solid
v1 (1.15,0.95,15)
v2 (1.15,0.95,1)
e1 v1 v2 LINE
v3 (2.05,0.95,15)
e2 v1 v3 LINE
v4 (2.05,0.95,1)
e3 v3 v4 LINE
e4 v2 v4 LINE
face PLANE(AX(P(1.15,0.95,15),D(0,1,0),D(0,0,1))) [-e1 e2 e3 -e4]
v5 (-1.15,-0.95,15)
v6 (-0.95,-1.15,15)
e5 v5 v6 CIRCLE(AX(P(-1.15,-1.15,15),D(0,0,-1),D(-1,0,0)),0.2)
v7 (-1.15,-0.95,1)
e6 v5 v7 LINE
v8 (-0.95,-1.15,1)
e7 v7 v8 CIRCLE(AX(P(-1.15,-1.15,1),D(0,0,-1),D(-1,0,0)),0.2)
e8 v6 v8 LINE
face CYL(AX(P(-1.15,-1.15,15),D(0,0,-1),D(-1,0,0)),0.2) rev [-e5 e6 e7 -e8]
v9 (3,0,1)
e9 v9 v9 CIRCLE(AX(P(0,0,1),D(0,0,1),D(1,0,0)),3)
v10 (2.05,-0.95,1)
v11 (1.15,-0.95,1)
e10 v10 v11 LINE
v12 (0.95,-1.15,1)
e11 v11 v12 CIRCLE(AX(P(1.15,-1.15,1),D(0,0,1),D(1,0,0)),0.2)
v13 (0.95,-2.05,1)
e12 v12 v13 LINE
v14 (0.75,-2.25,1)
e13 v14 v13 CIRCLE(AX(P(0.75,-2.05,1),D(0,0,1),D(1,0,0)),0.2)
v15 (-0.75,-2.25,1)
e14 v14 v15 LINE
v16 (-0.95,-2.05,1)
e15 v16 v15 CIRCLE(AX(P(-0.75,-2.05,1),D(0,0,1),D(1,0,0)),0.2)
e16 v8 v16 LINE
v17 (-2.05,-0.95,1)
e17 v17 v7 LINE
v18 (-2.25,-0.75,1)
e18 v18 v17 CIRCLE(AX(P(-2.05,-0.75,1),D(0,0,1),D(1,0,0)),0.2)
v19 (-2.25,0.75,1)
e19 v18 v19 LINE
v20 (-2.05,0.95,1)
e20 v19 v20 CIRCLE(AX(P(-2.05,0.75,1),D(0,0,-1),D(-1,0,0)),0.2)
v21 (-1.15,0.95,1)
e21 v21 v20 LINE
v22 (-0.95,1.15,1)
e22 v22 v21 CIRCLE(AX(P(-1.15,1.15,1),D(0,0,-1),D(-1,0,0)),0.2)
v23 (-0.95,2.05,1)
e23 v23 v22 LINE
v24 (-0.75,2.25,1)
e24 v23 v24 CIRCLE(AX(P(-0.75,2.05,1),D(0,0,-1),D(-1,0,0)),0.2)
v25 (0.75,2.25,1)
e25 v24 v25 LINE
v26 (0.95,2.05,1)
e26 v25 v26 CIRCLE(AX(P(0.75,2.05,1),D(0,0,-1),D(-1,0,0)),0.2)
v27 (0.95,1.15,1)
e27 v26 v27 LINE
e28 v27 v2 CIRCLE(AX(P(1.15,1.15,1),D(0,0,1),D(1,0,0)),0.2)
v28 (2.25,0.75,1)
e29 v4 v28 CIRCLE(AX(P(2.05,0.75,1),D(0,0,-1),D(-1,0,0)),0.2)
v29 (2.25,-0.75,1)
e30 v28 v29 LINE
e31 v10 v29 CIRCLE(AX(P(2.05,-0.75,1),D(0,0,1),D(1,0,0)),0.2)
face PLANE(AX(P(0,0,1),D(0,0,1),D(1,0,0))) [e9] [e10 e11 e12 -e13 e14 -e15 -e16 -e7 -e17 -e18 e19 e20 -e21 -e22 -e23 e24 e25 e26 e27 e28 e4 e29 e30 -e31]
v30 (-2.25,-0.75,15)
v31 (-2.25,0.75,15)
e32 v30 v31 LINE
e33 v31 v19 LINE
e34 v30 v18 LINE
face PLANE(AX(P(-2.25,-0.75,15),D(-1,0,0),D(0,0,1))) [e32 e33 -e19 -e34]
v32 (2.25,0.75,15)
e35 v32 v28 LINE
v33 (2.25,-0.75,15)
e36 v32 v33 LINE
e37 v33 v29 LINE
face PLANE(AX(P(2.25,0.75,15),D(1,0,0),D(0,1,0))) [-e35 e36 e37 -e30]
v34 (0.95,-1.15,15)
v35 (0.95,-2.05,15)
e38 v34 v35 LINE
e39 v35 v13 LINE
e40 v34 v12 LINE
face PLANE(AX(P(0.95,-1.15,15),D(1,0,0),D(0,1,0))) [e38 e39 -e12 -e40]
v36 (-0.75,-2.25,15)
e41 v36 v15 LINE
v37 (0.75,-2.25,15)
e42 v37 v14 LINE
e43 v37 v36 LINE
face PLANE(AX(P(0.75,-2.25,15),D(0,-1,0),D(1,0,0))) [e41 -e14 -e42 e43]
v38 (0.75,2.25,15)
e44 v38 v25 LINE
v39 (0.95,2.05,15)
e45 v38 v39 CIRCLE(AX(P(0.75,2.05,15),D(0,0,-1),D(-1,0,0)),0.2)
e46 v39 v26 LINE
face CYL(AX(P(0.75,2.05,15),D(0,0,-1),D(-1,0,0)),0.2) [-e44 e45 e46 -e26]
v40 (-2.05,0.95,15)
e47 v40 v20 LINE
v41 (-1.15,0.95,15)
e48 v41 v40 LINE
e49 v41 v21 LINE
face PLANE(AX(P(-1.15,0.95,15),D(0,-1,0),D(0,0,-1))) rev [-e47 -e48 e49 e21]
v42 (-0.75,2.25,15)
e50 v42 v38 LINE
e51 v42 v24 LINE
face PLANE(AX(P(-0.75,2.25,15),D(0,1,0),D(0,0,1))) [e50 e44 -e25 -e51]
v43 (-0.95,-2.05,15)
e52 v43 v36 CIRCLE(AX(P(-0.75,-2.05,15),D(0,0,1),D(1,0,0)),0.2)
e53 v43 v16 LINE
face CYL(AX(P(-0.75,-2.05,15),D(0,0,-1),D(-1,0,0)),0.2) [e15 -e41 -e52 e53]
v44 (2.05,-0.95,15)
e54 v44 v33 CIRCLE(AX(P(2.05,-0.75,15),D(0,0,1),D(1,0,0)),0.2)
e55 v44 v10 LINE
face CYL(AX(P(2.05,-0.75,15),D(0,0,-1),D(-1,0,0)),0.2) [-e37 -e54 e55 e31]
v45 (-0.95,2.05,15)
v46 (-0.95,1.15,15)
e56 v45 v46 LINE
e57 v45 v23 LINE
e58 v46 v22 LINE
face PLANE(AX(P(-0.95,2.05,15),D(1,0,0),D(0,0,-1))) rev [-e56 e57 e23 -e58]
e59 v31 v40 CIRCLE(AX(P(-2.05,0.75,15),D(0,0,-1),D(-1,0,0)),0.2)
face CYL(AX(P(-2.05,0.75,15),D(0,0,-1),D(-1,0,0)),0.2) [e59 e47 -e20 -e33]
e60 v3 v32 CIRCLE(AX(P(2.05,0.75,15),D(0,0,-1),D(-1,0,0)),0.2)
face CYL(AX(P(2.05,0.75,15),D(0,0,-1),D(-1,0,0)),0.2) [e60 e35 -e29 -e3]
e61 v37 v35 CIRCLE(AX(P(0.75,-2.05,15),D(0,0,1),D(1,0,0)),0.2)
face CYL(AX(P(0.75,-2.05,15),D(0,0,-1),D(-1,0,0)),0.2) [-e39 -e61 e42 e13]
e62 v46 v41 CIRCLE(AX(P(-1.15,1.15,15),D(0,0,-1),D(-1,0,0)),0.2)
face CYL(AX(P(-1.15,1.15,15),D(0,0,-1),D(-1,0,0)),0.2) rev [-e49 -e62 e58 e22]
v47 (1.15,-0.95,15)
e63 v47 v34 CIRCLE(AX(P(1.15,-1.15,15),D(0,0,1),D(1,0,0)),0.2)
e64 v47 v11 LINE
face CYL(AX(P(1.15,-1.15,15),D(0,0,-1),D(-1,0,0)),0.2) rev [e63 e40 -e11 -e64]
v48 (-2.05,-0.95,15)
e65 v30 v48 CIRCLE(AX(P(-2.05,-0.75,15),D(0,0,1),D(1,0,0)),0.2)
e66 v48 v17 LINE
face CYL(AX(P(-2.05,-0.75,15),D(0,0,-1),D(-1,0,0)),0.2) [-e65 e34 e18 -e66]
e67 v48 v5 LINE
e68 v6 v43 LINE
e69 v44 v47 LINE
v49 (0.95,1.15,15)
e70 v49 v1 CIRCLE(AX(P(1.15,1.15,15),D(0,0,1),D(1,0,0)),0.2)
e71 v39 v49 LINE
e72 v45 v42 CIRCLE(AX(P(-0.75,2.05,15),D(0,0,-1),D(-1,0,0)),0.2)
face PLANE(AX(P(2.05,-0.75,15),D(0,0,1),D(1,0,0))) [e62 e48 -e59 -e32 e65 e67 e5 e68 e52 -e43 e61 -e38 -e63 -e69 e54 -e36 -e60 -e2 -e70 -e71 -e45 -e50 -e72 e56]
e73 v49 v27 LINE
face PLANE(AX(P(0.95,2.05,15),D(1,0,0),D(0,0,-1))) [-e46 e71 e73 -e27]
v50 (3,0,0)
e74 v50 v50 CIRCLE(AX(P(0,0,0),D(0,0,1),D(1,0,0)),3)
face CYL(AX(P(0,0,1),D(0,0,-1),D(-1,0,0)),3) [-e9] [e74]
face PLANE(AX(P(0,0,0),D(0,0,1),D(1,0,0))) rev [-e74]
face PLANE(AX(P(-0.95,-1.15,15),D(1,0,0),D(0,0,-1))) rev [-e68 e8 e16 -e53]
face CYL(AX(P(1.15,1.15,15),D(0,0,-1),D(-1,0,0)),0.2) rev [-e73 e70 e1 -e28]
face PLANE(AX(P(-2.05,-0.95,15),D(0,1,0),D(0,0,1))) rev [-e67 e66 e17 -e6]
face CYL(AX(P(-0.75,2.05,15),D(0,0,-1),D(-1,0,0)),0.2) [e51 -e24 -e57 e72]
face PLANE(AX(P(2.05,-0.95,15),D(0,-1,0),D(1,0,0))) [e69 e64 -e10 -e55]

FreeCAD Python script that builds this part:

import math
import FreeCAD as App
import Part
import Sketcher

V = App.Vector

doc = App.newDocument("Part")
body = doc.addObject("PartDesign::Body", "Body")

# Sketch on XY plane
sketch1 = body.newObject("Sketcher::SketchObject", "Sketch")
sketch1.AttachmentSupport = (doc.getObject("XY_Plane"), [""])
sketch1.MapMode = "FlatFace"
sketch1.addGeometry(Part.Circle(V(0, 0, 0), V(0, 0, 1), 3), False)
sketch1.addConstraint(Sketcher.Constraint("Coincident", 0, 3, -1, 1))
sketch1.addConstraint(Sketcher.Constraint("Diameter", 0, 6.0))
pad1 = body.newObject("PartDesign::Pad", "Pad")
pad1.Profile = sketch1
pad1.Length = 1

# Sketch on XY plane
sketch2 = body.newObject("Sketcher::SketchObject", "Sketch001")
sketch2.AttachmentSupport = (doc.getObject("XY_Plane"), [""])
sketch2.MapMode = "FlatFace"
sketch2.AttachmentOffset = App.Placement(V(0, 0, 1), App.Rotation())
sketch2.addGeometry(Part.LineSegment(V(-0.95, 2.05, 0), V(-0.95, 1.15, 0)), False)
sketch2.addGeometry(Part.ArcOfCircle(Part.Circle(V(-1.15, 1.15, 0), V(0, 0, 1), 0.2), math.radians(-90), math.radians(0)), False)
sketch2.addGeometry(Part.LineSegment(V(-1.15, 0.95, 0), V(-2.05, 0.95, 0)), False)
sketch2.addGeometry(Part.ArcOfCircle(Part.Circle(V(-2.05, 0.75, 0), V(0, 0, 1), 0.2), math.radians(90), math.radians(180)), False)
sketch2.addGeometry(Part.LineSegment(V(-2.25, 0.75, 0), V(-2.25, -0.75, 0)), False)
sketch2.addGeometry(Part.ArcOfCircle(Part.Circle(V(-2.05, -0.75, 0), V(0, 0, 1), 0.2), math.radians(-180), math.radians(-90)), False)
sketch2.addGeometry(Part.LineSegment(V(-2.05, -0.95, 0), V(-1.15, -0.95, 0)), False)
sketch2.addGeometry(Part.ArcOfCircle(Part.Circle(V(-1.15, -1.15, 0), V(0, 0, 1), 0.2), math.radians(0), math.radians(90)), False)
sketch2.addGeometry(Part.LineSegment(V(-0.95, -1.15, 0), V(-0.95, -2.05, 0)), False)
sketch2.addGeometry(Part.ArcOfCircle(Part.Circle(V(-0.75, -2.05, 0), V(0, 0, 1), 0.2), math.radians(-180), math.radians(-90)), False)
sketch2.addGeometry(Part.LineSegment(V(-0.75, -2.25, 0), V(0.75, -2.25, 0)), False)
sketch2.addGeometry(Part.ArcOfCircle(Part.Circle(V(0.75, -2.05, 0), V(0, 0, 1), 0.2), math.radians(-90), math.radians(0)), False)
sketch2.addGeometry(Part.LineSegment(V(0.95, -2.05, 0), V(0.95, -1.15, 0)), False)
sketch2.addGeometry(Part.ArcOfCircle(Part.Circle(V(1.15, -1.15, 0), V(0, 0, 1), 0.2), math.radians(90), math.radians(180)), False)
sketch2.addGeometry(Part.LineSegment(V(1.15, -0.95, 0), V(2.05, -0.95, 0)), False)
sketch2.addGeometry(Part.ArcOfCircle(Part.Circle(V(2.05, -0.75, 0), V(0, 0, 1), 0.2), math.radians(-90), math.radians(0)), False)
sketch2.addGeometry(Part.LineSegment(V(2.25, -0.75, 0), V(2.25, 0.75, 0)), False)
sketch2.addGeometry(Part.ArcOfCircle(Part.Circle(V(2.05, 0.75, 0), V(0, 0, 1), 0.2), math.radians(0), math.radians(90)), False)
sketch2.addGeometry(Part.LineSegment(V(2.05, 0.95, 0), V(1.15, 0.95, 0)), False)
sketch2.addGeometry(Part.ArcOfCircle(Part.Circle(V(1.15, 1.15, 0), V(0, 0, 1), 0.2), math.radians(-180), math.radians(-90)), False)
sketch2.addGeometry(Part.LineSegment(V(0.95, 1.15, 0), V(0.95, 2.05, 0)), False)
sketch2.addGeometry(Part.ArcOfCircle(Part.Circle(V(0.75, 2.05, 0), V(0, 0, 1), 0.2), math.radians(0), math.radians(90)), False)
sketch2.addGeometry(Part.LineSegment(V(0.75, 2.25, 0), V(-0.75, 2.25, 0)), False)
sketch2.addGeometry(Part.ArcOfCircle(Part.Circle(V(-0.75, 2.05, 0), V(0, 0, 1), 0.2), math.radians(90), math.radians(180)), False)
sketch2.addConstraint(Sketcher.Constraint("Tangent", 0, 2, 1, 2))
sketch2.addConstraint(Sketcher.Constraint("Tangent", 1, 1, 2, 1))
sketch2.addConstraint(Sketcher.Constraint("Tangent", 2, 2, 3, 1))
sketch2.addConstraint(Sketcher.Constraint("Tangent", 3, 2, 4, 1))
sketch2.addConstraint(Sketcher.Constraint("Tangent", 4, 2, 5, 1))
sketch2.addConstraint(Sketcher.Constraint("Tangent", 5, 2, 6, 1))
sketch2.addConstraint(Sketcher.Constraint("Tangent", 6, 2, 7, 2))
sketch2.addConstraint(Sketcher.Constraint("Tangent", 7, 1, 8, 1))
sketch2.addConstraint(Sketcher.Constraint("Tangent", 8, 2, 9, 1))
sketch2.addConstraint(Sketcher.Constraint("Tangent", 9, 2, 10, 1))
sketch2.addConstraint(Sketcher.Constraint("Tangent", 10, 2, 11, 1))
sketch2.addConstraint(Sketcher.Constraint("Tangent", 11, 2, 12, 1))
sketch2.addConstraint(Sketcher.Constraint("Tangent", 12, 2, 13, 2))
sketch2.addConstraint(Sketcher.Constraint("Tangent", 13, 1, 14, 1))
sketch2.addConstraint(Sketcher.Constraint("Tangent", 14, 2, 15, 1))
sketch2.addConstraint(Sketcher.Constraint("Tangent", 15, 2, 16, 1))
sketch2.addConstraint(Sketcher.Constraint("Tangent", 16, 2, 17, 1))
sketch2.addConstraint(Sketcher.Constraint("Tangent", 17, 2, 18, 1))
sketch2.addConstraint(Sketcher.Constraint("Tangent", 18, 2, 19, 2))
sketch2.addConstraint(Sketcher.Constraint("Tangent", 19, 1, 20, 1))
sketch2.addConstraint(Sketcher.Constraint("Tangent", 20, 2, 21, 1))
sketch2.addConstraint(Sketcher.Constraint("Tangent", 21, 2, 22, 1))
sketch2.addConstraint(Sketcher.Constraint("Tangent", 22, 2, 23, 1))
sketch2.addConstraint(Sketcher.Constraint("Tangent", 23, 2, 0, 1))
sketch2.addConstraint(Sketcher.Constraint("Vertical", 0))
sketch2.addConstraint(Sketcher.Constraint("Horizontal", 2))
sketch2.addConstraint(Sketcher.Constraint("Vertical", 4))
sketch2.addConstraint(Sketcher.Constraint("Horizontal", 6))
sketch2.addConstraint(Sketcher.Constraint("Vertical", 8))
sketch2.addConstraint(Sketcher.Constraint("Horizontal", 10))
sketch2.addConstraint(Sketcher.Constraint("Vertical", 12))
sketch2.addConstraint(Sketcher.Constraint("Horizontal", 14))
sketch2.addConstraint(Sketcher.Constraint("Vertical", 16))
sketch2.addConstraint(Sketcher.Constraint("Horizontal", 18))
sketch2.addConstraint(Sketcher.Constraint("Vertical", 20))
sketch2.addConstraint(Sketcher.Constraint("Horizontal", 22))
sketch2.addConstraint(Sketcher.Constraint("Equal", 1, 3))
sketch2.addConstraint(Sketcher.Constraint("Equal", 3, 5))
sketch2.addConstraint(Sketcher.Constraint("Equal", 5, 7))
sketch2.addConstraint(Sketcher.Constraint("Equal", 7, 9))
sketch2.addConstraint(Sketcher.Constraint("Equal", 9, 11))
sketch2.addConstraint(Sketcher.Constraint("Equal", 11, 13))
sketch2.addConstraint(Sketcher.Constraint("Equal", 13, 15))
sketch2.addConstraint(Sketcher.Constraint("Equal", 15, 17))
sketch2.addConstraint(Sketcher.Constraint("Equal", 17, 19))
sketch2.addConstraint(Sketcher.Constraint("Equal", 19, 21))
sketch2.addConstraint(Sketcher.Constraint("Equal", 21, 23))
sketch2.addConstraint(Sketcher.Constraint("Symmetric", 1, 3, 13, 3, -1, 1))
sketch2.addConstraint(Sketcher.Constraint("Symmetric", 5, 3, 17, 3, -1, 1))
sketch2.addConstraint(Sketcher.Constraint("Symmetric", 9, 3, 21, 3, -1, 1))
sketch2.addConstraint(Sketcher.Constraint("Symmetric", 7, 3, 13, 3, -2))
sketch2.addConstraint(Sketcher.Constraint("Equal", 18, 0))
sketch2.addConstraint(Sketcher.Constraint("Equal", 22, 4))
sketch2.addConstraint(Sketcher.Constraint("Radius", 1, 0.2))
sketch2.addConstraint(Sketcher.Constraint("DistanceX", 2, 2, 2, 1, 0.9))
sketch2.addConstraint(Sketcher.Constraint("DistanceX", 10, 1, 10, 2, 1.5))
pad2 = body.newObject("PartDesign::Pad", "Pad001")
pad2.Profile = sketch2
pad2.Length = 14

doc.recompute()
